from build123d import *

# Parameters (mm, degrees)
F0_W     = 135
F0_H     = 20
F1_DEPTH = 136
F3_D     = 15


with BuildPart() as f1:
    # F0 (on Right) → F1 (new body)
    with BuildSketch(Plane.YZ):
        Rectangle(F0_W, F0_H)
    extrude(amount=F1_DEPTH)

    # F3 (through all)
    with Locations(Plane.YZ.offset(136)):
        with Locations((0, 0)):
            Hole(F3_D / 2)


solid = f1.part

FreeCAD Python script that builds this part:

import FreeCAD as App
import Part
import Sketcher


def add_polygon(sketch, points):
    """Adds a closed chain of lines whose ends are joined by coincident constraints."""
    first, n = sketch.GeometryCount, len(points)
    for a, b in zip(points, points[1:] + points[:1]):
        sketch.addGeometry(Part.LineSegment(App.Vector(*a, 0), App.Vector(*b, 0)), False)
    for i in range(n):
        sketch.addConstraint(Sketcher.Constraint("Coincident", first + i, 2, first + (i + 1) % n, 1))

doc = App.newDocument("Part")
body = doc.addObject("PartDesign::Body", "Body")

# Sketch on YZ plane
sketch1 = body.newObject("Sketcher::SketchObject", "Sketch")
sketch1.AttachmentSupport = (doc.getObject("YZ_Plane"), [""])
sketch1.MapMode = "FlatFace"
add_polygon(sketch1, [(-68, 10), (-68, -10), (68, -10), (68, 10)])  # lines 0-3
sketch1.addConstraint([
    Sketcher.Constraint("Vertical", 0),
    Sketcher.Constraint("Horizontal", 1),
    Sketcher.Constraint("Vertical", 2),
    Sketcher.Constraint("Horizontal", 3),
    Sketcher.Constraint("Symmetric", 0, 2, 2, 2, -1, 1),
    Sketcher.Constraint("DistanceX", 1, 1, 1, 2, 135.0),
    Sketcher.Constraint("DistanceY", 0, 2, 0, 1, 20.0),
])
pad1 = body.newObject("PartDesign::Pad", "Pad")
pad1.Profile = sketch1
pad1.Length = 136

# Sketch on YZ plane
sketch2 = body.newObject("Sketcher::SketchObject", "Sketch001")
sketch2.AttachmentSupport = (doc.getObject("YZ_Plane"), [""])
sketch2.MapMode = "FlatFace"
sketch2.AttachmentOffset = App.Placement(App.Vector(0, 0, 136), App.Rotation())
sketch2.addGeometry(Part.Circle(App.Vector(0, 0, 0), App.Vector(0, 0, 1), 8), False)
sketch2.addConstraint([
    Sketcher.Constraint("Coincident", 0, 3, -1, 1),
    Sketcher.Constraint("Diameter", 0, 15.0),
])
doc.recompute()
hole = body.newObject("PartDesign::Hole", "Hole")
hole.Profile = sketch2
hole.ThreadType = "None"
hole.Diameter = 15
hole.DepthType = "ThroughAll"

doc.recompute()
